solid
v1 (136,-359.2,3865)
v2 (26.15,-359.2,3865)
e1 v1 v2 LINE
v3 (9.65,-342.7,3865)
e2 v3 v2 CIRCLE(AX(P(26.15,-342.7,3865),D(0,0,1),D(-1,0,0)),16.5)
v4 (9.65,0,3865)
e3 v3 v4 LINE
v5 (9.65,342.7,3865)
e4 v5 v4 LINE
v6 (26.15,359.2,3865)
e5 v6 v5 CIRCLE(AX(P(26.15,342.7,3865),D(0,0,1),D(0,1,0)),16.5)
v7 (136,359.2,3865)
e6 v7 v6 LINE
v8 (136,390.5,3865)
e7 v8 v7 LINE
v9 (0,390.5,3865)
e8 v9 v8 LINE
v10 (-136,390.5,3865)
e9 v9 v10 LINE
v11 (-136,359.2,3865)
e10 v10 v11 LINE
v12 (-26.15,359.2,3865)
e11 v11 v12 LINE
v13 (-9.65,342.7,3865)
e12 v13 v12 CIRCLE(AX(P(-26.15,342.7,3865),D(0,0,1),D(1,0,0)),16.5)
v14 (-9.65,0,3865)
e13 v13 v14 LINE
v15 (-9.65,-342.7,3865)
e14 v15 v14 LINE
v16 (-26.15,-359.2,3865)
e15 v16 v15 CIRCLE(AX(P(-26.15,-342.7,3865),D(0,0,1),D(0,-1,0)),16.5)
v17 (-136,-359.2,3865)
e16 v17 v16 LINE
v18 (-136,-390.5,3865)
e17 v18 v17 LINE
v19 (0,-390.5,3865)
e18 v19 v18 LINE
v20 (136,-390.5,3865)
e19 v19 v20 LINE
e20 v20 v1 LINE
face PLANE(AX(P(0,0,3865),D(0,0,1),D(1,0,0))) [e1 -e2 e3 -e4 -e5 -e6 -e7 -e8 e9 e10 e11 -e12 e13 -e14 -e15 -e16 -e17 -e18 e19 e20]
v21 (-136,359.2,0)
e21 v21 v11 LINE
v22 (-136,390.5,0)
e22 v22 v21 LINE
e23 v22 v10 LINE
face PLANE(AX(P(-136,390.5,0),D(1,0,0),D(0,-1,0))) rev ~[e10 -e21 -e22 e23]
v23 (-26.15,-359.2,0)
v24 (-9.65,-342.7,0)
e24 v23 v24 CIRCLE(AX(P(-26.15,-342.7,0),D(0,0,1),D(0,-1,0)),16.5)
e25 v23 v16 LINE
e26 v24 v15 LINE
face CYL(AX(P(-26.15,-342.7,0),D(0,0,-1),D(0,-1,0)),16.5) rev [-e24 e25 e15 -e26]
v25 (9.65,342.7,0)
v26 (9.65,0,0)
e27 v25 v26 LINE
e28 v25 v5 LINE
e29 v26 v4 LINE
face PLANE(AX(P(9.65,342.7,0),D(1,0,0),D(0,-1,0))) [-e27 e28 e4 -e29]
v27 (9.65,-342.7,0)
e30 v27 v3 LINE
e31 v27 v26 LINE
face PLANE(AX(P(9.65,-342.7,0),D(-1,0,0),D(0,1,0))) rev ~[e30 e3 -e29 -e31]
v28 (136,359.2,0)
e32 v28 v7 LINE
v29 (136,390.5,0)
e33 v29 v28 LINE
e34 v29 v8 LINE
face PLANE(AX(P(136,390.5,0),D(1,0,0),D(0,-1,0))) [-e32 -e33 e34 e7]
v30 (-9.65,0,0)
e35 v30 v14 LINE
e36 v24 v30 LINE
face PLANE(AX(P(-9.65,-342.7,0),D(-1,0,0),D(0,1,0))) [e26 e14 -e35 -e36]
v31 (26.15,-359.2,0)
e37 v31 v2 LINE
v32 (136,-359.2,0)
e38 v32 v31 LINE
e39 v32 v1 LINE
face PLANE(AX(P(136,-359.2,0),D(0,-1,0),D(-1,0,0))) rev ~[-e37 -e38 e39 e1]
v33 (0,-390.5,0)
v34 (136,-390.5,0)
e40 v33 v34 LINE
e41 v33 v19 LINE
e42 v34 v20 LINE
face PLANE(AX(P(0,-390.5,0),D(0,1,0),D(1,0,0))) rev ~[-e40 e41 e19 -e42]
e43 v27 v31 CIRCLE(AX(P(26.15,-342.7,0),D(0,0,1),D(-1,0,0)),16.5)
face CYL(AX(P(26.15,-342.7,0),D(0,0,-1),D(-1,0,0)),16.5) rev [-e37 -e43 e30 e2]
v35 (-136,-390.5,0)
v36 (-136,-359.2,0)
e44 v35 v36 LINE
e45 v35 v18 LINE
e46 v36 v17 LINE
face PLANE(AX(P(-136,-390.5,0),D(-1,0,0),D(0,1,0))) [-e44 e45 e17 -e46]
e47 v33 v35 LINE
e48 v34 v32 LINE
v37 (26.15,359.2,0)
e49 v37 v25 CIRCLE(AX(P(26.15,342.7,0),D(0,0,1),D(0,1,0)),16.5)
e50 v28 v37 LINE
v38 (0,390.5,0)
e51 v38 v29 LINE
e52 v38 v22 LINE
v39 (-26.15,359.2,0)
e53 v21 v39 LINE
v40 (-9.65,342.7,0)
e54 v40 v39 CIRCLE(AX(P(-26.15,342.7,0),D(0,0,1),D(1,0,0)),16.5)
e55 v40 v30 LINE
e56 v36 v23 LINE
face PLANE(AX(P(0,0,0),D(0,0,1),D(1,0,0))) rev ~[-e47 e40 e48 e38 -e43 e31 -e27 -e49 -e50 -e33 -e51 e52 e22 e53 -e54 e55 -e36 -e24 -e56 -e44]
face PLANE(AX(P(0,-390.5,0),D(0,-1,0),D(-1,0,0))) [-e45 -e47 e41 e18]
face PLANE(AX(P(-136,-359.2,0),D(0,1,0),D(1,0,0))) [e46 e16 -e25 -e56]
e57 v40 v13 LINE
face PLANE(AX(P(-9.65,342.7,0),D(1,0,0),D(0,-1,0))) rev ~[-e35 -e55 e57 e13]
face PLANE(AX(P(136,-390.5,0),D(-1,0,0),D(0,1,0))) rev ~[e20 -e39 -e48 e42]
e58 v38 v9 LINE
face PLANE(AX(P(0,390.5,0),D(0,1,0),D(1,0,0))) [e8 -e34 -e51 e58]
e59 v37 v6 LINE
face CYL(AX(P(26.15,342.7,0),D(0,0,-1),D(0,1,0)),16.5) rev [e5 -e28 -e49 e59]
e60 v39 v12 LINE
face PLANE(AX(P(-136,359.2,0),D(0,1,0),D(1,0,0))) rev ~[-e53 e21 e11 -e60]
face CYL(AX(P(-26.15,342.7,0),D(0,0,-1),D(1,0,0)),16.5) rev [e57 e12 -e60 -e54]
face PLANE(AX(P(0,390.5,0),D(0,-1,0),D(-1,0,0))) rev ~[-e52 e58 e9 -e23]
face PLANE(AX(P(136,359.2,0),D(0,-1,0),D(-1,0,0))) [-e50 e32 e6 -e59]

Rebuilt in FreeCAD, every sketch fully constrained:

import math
import FreeCAD as App
import Part
import Sketcher
from FreeCAD import Vector
Q = App.Units.Quantity

doc = App.newDocument("Part")
params = doc.addObject("Spreadsheet::Sheet", "Params")
for row, (alias, value) in enumerate([
    ("sketch1_radius", "16.5 mm"),
    ("sketch1_height", "31.3 mm"),
    ("pad1_length", "3865 mm"),
], start=1):
    params.set(f"A{row}", alias)
    params.set(f"B{row}", "=" + value)
    params.setAlias(f"B{row}", alias)

body = doc.addObject("PartDesign::Body", "Body")

sketch1 = body.newObject("Sketcher::SketchObject", "Sketch")
sketch1.AttachmentSupport = (doc.getObject("XY_Plane"), [""])
sketch1.MapMode = "FlatFace"
sketch1.addGeometry([
    Part.LineSegment(Vector(-136, -359, 0), Vector(-136, -390, 0)),
    Part.LineSegment(Vector(-136, -390, 0), Vector(136, -390, 0)),
    Part.LineSegment(Vector(136, -390, 0), Vector(136, -359, 0)),
    Part.LineSegment(Vector(136, -359, 0), Vector(26, -359, 0)),
    Part.ArcOfCircle(Part.Circle(Vector(26, -343, 0), Vector(0, 0, 1), 16), math.radians(180), math.radians(270)),
    Part.LineSegment(Vector(10, -343, 0), Vector(10, 343, 0)),
    Part.ArcOfCircle(Part.Circle(Vector(26, 343, 0), Vector(0, 0, 1), 16), math.radians(90), math.radians(180)),
    Part.LineSegment(Vector(26, 359, 0), Vector(136, 359, 0)),
    Part.LineSegment(Vector(136, 359, 0), Vector(136, 390, 0)),
    Part.LineSegment(Vector(136, 390, 0), Vector(-136, 390, 0)),
    Part.LineSegment(Vector(-136, 390, 0), Vector(-136, 359, 0)),
    Part.LineSegment(Vector(-136, 359, 0), Vector(-26, 359, 0)),
    Part.ArcOfCircle(Part.Circle(Vector(-26, 343, 0), Vector(0, 0, 1), 16), math.radians(0), math.radians(90)),
    Part.LineSegment(Vector(-10, 343, 0), Vector(-10, -343, 0)),
    Part.ArcOfCircle(Part.Circle(Vector(-26, -343, 0), Vector(0, 0, 1), 16), math.radians(-90), math.radians(0)),
    Part.LineSegment(Vector(-26, -359, 0), Vector(-136, -359, 0)),
], False)
sketch1.addConstraint([
    Sketcher.Constraint("Coincident", 0, 2, 1, 1),
    Sketcher.Constraint("Coincident", 1, 2, 2, 1),
    Sketcher.Constraint("Coincident", 2, 2, 3, 1),
    Sketcher.Constraint("Tangent", 3, 2, 4, 2),
    Sketcher.Constraint("Tangent", 4, 1, 5, 1),
    Sketcher.Constraint("Tangent", 5, 2, 6, 2),
    Sketcher.Constraint("Tangent", 6, 1, 7, 1),
    Sketcher.Constraint("Coincident", 7, 2, 8, 1),
    Sketcher.Constraint("Coincident", 8, 2, 9, 1),
    Sketcher.Constraint("Coincident", 9, 2, 10, 1),
    Sketcher.Constraint("Coincident", 10, 2, 11, 1),
    Sketcher.Constraint("Tangent", 11, 2, 12, 2),
    Sketcher.Constraint("Tangent", 12, 1, 13, 1),
    Sketcher.Constraint("Tangent", 13, 2, 14, 2),
    Sketcher.Constraint("Tangent", 14, 1, 15, 1),
    Sketcher.Constraint("Coincident", 15, 2, 0, 1),
    Sketcher.Constraint("Vertical", 0),
    Sketcher.Constraint("Horizontal", 1),
    Sketcher.Constraint("Vertical", 2),
    Sketcher.Constraint("Horizontal", 3),
    Sketcher.Constraint("Vertical", 5),
    Sketcher.Constraint("Horizontal", 7),
    Sketcher.Constraint("Vertical", 8),
    Sketcher.Constraint("Horizontal", 9),
    Sketcher.Constraint("Vertical", 10),
    Sketcher.Constraint("Horizontal", 11),
    Sketcher.Constraint("Vertical", 13),
    Sketcher.Constraint("Horizontal", 15),
    Sketcher.Constraint("Equal", 4, 6),
    Sketcher.Constraint("Equal", 6, 12),
    Sketcher.Constraint("Equal", 12, 14),
    Sketcher.Constraint("Symmetric", 4, 3, 12, 3, -1, 1),
    Sketcher.Constraint("Symmetric", 0, 2, 8, 2, -1, 1),
    Sketcher.Constraint("Symmetric", 7, 2, 10, 2, -2),
    Sketcher.Constraint("Symmetric", 2, 2, 15, 2, -2),
    Sketcher.Constraint("Radius", 4, Q("16.5 mm")),
    Sketcher.Constraint("DistanceY", 0, 2, 0, 1, Q("31.3 mm")),
    Sketcher.Constraint("DistanceX", 0, 2, -1, 1, Q("136 mm")),
    Sketcher.Constraint("DistanceY", 0, 2, -1, 1, Q("390.5 mm")),
    Sketcher.Constraint("DistanceX", -1, 1, 4, 1, Q("9.65 mm")),
])
sketch1.setExpression("Constraints[35]", "Params.sketch1_radius")
sketch1.setExpression("Constraints[36]", "Params.sketch1_height")
pad1 = body.newObject("PartDesign::Pad", "Pad")
pad1.Profile = sketch1
pad1.setExpression("Length", "Params.pad1_length")

doc.recompute()
